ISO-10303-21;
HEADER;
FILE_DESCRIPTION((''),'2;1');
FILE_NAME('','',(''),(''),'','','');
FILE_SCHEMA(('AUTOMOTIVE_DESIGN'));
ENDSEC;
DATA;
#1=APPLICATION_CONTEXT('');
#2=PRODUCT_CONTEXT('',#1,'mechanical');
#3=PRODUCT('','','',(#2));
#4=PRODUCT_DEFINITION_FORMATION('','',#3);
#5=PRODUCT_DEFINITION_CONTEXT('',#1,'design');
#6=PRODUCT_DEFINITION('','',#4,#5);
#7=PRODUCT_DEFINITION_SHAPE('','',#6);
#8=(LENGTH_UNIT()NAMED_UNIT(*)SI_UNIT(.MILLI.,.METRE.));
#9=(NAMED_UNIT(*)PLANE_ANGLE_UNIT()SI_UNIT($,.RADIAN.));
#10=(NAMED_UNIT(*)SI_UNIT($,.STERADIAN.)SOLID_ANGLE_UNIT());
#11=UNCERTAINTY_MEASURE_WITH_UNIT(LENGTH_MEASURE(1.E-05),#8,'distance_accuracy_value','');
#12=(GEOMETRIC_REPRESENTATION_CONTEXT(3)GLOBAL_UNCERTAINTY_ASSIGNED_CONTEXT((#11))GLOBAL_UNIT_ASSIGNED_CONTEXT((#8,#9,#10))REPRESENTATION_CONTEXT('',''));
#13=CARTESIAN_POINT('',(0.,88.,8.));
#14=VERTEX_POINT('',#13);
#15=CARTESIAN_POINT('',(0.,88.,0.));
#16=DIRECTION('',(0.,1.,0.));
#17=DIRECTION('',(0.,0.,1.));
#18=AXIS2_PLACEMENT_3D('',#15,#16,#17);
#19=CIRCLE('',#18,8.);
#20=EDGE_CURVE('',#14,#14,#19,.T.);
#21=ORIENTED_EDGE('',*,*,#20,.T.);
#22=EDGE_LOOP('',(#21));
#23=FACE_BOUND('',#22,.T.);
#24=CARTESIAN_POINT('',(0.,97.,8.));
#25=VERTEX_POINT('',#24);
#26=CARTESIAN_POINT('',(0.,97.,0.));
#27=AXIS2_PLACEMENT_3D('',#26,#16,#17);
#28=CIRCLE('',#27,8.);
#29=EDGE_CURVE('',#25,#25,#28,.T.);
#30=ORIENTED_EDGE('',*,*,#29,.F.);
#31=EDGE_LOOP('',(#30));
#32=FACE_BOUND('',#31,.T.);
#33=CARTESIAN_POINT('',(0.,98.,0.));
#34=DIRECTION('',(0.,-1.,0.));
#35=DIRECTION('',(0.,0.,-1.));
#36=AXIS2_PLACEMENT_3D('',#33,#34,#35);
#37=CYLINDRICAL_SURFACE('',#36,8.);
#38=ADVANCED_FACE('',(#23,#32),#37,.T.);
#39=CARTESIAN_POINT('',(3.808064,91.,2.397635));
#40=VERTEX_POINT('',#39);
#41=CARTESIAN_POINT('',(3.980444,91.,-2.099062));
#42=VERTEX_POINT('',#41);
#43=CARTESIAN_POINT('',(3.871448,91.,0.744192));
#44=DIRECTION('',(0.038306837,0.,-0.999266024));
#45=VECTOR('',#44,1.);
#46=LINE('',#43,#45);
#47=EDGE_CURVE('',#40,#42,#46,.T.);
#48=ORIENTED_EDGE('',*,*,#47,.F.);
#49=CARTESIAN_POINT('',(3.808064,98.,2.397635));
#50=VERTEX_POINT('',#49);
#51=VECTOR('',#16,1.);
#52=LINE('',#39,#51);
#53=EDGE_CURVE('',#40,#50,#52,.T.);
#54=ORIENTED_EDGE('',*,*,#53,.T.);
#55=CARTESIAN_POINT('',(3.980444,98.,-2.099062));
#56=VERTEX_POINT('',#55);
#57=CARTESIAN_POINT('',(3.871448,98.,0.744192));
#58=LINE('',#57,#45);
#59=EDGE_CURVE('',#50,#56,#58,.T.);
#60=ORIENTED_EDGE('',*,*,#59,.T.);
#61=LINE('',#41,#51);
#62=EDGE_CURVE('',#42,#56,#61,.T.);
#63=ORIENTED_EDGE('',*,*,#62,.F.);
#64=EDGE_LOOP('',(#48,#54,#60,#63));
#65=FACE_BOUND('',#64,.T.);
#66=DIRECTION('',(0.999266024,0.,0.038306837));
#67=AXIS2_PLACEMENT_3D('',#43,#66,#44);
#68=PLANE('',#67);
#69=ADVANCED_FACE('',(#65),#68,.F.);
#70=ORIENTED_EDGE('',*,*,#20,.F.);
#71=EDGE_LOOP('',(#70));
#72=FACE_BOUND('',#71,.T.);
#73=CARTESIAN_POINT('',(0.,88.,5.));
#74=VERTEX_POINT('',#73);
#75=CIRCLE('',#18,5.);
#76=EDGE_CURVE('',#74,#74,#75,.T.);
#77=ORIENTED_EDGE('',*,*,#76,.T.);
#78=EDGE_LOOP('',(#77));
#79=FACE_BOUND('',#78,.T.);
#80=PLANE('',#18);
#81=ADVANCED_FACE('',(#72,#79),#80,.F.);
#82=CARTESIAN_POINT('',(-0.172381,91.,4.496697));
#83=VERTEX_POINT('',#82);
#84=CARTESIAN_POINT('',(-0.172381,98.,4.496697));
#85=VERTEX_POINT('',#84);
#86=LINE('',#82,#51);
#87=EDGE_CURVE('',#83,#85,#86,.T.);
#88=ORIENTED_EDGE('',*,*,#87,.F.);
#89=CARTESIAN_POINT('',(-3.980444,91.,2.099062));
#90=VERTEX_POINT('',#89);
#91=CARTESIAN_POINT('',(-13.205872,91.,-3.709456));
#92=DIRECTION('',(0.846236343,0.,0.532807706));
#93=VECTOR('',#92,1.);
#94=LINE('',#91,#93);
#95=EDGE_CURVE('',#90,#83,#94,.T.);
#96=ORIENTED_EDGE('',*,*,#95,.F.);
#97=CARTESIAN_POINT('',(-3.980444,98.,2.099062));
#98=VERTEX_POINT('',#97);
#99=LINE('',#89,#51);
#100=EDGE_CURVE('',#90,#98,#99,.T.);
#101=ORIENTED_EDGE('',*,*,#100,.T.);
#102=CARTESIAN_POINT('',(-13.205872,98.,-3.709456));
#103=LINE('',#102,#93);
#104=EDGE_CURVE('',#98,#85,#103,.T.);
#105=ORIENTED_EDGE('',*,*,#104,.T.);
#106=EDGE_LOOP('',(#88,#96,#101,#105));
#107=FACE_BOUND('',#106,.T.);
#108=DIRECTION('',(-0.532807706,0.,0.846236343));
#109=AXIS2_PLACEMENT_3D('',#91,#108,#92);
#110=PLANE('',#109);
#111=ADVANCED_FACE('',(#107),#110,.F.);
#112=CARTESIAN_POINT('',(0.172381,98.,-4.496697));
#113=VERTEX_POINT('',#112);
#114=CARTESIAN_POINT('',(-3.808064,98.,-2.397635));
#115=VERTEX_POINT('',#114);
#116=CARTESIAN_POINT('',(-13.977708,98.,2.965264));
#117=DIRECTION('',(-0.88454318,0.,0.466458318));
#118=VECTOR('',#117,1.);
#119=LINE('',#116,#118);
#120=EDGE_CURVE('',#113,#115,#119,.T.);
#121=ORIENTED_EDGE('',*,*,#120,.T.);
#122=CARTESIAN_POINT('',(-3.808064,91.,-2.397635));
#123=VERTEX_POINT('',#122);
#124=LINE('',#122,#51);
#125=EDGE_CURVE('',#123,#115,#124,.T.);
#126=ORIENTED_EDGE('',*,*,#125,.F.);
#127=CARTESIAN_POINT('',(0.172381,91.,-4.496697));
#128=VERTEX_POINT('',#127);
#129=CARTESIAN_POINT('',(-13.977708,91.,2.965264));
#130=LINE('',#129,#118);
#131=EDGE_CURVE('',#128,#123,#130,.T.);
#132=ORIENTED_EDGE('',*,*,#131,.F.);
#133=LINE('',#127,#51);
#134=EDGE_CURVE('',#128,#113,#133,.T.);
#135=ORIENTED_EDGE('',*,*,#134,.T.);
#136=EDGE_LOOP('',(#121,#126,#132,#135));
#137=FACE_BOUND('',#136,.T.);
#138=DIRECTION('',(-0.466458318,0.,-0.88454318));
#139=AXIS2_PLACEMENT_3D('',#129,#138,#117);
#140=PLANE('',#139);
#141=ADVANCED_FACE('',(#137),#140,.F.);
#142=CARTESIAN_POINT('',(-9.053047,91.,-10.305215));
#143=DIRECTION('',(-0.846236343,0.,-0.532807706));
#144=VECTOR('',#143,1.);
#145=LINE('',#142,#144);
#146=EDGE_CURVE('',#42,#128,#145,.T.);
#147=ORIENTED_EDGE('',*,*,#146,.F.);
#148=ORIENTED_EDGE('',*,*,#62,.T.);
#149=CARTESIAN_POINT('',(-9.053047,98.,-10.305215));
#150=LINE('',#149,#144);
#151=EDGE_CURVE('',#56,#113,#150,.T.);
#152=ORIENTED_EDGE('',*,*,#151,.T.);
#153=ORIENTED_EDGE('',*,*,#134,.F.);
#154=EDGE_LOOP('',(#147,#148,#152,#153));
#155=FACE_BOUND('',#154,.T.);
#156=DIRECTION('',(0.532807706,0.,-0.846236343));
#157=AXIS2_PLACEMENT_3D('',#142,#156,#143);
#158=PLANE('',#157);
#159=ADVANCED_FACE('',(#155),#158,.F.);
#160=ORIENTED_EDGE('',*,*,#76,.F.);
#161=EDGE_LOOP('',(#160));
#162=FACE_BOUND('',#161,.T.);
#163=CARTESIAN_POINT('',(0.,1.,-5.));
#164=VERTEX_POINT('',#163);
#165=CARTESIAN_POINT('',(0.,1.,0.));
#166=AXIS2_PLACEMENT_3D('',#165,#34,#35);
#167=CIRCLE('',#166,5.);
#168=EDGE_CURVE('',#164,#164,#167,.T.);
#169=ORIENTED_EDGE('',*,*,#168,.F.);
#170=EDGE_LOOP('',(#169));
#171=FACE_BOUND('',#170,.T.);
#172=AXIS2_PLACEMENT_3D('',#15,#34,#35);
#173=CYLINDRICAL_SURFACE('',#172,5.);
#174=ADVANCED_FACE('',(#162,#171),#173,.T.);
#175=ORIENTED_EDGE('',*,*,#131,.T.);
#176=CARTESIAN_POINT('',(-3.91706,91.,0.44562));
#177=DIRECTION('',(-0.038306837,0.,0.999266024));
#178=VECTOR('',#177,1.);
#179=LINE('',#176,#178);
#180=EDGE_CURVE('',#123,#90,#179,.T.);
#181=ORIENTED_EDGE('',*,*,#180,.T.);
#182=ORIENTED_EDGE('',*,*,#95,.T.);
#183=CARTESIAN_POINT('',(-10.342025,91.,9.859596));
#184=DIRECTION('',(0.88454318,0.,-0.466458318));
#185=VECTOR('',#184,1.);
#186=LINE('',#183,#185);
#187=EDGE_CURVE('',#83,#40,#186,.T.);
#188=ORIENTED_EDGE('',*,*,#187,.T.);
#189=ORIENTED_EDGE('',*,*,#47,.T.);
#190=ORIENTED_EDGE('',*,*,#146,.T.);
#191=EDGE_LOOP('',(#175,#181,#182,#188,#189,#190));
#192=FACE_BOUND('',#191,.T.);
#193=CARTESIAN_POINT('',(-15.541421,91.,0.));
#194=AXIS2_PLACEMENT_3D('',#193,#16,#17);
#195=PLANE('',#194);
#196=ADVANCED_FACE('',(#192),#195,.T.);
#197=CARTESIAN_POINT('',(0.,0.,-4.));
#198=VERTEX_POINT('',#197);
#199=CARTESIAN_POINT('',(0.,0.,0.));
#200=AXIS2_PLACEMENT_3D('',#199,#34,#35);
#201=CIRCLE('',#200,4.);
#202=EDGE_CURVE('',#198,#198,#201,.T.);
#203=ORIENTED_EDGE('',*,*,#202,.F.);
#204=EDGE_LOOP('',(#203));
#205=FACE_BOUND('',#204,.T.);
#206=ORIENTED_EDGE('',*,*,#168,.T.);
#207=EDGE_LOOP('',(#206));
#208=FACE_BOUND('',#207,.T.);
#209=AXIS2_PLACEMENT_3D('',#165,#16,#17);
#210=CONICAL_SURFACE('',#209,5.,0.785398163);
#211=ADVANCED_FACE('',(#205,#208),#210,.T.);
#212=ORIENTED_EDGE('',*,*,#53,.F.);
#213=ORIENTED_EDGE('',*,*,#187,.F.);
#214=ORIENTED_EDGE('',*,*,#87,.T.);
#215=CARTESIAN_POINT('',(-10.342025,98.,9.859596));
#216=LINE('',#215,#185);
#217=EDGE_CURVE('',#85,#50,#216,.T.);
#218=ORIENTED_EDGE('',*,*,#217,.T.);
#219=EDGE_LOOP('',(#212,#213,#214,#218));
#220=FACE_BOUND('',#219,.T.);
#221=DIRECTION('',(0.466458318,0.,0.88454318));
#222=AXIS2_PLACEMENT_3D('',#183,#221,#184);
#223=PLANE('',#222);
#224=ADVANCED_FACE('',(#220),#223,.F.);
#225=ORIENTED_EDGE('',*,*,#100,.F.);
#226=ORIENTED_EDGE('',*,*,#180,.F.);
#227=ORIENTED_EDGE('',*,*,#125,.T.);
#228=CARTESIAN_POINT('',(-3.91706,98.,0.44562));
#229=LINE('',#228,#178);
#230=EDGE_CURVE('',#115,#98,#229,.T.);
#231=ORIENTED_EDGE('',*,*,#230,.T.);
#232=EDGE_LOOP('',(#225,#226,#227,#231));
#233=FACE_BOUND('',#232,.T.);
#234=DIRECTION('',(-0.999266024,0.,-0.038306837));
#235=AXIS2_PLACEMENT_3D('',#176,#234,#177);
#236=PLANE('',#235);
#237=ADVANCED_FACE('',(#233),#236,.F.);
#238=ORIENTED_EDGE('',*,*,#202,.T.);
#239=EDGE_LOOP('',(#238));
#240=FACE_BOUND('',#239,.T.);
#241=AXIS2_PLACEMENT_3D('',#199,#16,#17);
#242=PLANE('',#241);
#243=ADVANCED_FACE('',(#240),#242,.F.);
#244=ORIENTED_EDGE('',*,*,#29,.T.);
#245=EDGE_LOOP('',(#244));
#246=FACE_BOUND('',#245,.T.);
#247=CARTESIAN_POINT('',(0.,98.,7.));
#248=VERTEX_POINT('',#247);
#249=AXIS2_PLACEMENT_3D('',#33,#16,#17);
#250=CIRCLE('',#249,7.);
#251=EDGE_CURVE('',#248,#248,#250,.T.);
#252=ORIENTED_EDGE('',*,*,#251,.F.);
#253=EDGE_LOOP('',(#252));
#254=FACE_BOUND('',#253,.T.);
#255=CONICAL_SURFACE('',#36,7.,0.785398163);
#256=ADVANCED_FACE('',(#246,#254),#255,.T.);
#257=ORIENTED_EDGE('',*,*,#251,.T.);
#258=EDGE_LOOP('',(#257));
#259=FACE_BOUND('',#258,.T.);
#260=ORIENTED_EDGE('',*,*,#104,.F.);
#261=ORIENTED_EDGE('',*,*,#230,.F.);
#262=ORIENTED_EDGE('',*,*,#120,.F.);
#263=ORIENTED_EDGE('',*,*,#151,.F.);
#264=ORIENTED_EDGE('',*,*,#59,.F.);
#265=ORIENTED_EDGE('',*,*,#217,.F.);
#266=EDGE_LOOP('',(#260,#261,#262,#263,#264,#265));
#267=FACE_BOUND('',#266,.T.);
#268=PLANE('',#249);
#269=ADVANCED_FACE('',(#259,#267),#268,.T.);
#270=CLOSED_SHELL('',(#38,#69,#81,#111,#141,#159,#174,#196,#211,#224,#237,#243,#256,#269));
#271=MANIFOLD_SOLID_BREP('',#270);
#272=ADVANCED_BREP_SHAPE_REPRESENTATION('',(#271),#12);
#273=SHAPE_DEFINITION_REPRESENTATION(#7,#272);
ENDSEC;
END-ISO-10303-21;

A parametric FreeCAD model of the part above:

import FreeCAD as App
import Part
import Sketcher
from FreeCAD import Vector
Q = App.Units.Quantity


def add_polygon(sketch, points):
    """Adds a closed chain of lines whose ends are joined by coincident constraints."""
    first, n = sketch.GeometryCount, len(points)
    for a, b in zip(points, points[1:] + points[:1]):
        sketch.addGeometry(Part.LineSegment(App.Vector(*a, 0), App.Vector(*b, 0)), False)
    for i in range(n):
        sketch.addConstraint(Sketcher.Constraint("Coincident", first + i, 2, first + (i + 1) % n, 1))

doc = App.newDocument("Part")
params = doc.addObject("Spreadsheet::Sheet", "Params")
for row, (alias, value) in enumerate([
    ("sketch1_diameter", "10 mm"),
    ("pad1_length", "88 mm"),
    ("sketch2_diameter", "16 mm"),
    ("pad2_length", "10 mm"),
    ("sketch3_width", "1 mm"),
    ("groove_angle", "360 deg"),
    ("sketch4_width", "1 mm"),
    ("groove2_angle", "360 deg"),
    ("sketch5_length", "4.5 mm"),
    ("pocket1_length", "7 mm"),
], start=1):
    params.set(f"A{row}", alias)
    params.set(f"B{row}", "=" + value)
    params.setAlias(f"B{row}", alias)

body = doc.addObject("PartDesign::Body", "Body")

sketch1 = body.newObject("Sketcher::SketchObject", "Sketch")
sketch1.AttachmentSupport = (doc.getObject("XZ_Plane"), [""])
sketch1.MapMode = "FlatFace"
sketch1.addGeometry(Part.Circle(Vector(0, 0, 0), Vector(0, 0, 1), 5), False)
sketch1.addConstraint(Sketcher.Constraint("Coincident", 0, 3, -1, 1))
sketch1.addConstraint(Sketcher.Constraint("Diameter", 0, Q("10 mm")))
sketch1.setExpression("Constraints[1]", "Params.sketch1_diameter")
pad1 = body.newObject("PartDesign::Pad", "Pad")
pad1.Profile = sketch1
pad1.setExpression("Length", "Params.pad1_length")
pad1.Reversed = True

sketch2 = body.newObject("Sketcher::SketchObject", "Sketch001")
sketch2.AttachmentSupport = (doc.getObject("XZ_Plane"), [""])
sketch2.MapMode = "FlatFace"
sketch2.AttachmentOffset = App.Placement(Vector(0, 0, -88), App.Rotation())
sketch2.addGeometry(Part.Circle(Vector(0, 0, 0), Vector(0, 0, 1), 8), False)
sketch2.addConstraint(Sketcher.Constraint("Coincident", 0, 3, -1, 1))
sketch2.addConstraint(Sketcher.Constraint("Diameter", 0, Q("16 mm")))
sketch2.setExpression("Constraints[1]", "Params.sketch2_diameter")
pad2 = body.newObject("PartDesign::Pad", "Pad001")
pad2.Profile = sketch2
pad2.setExpression("Length", "Params.pad2_length")
pad2.Reversed = True

sketch3 = body.newObject("Sketcher::SketchObject", "Sketch002")
sketch3.AttachmentSupport = (doc.getObject("XY_Plane"), [""])
sketch3.MapMode = "FlatFace"
add_polygon(sketch3, [(8, 97), (8, 98), (7, 98)])
sketch3.addConstraint(Sketcher.Constraint("Vertical", 0))
sketch3.addConstraint(Sketcher.Constraint("Horizontal", 1))
sketch3.addConstraint(Sketcher.Constraint("Equal", 1, 0))
sketch3.addConstraint(Sketcher.Constraint("DistanceX", 1, 2, 1, 1, Q("1 mm")))
sketch3.addConstraint(Sketcher.Constraint("DistanceX", -1, 1, 0, 2, Q("8 mm")))
sketch3.addConstraint(Sketcher.Constraint("DistanceY", -1, 1, 0, 2, Q("98 mm")))
sketch3.setExpression("Constraints[6]", "Params.sketch3_width")
groove = body.newObject("PartDesign::Groove", "Groove")
groove.Profile = sketch3
groove.ReferenceAxis = (sketch3, ["V_Axis"])
groove.setExpression("Angle", "Params.groove_angle")

sketch4 = body.newObject("Sketcher::SketchObject", "Sketch003")
sketch4.AttachmentSupport = (doc.getObject("XY_Plane"), [""])
sketch4.MapMode = "FlatFace"
add_polygon(sketch4, [(4, 0), (5, 0), (5, 1)])
sketch4.addConstraint(Sketcher.Constraint("Horizontal", 0))
sketch4.addConstraint(Sketcher.Constraint("Vertical", 1))
sketch4.addConstraint(Sketcher.Constraint("PointOnObject", 0, 2, -1))
sketch4.addConstraint(Sketcher.Constraint("Equal", 0, 1))
sketch4.addConstraint(Sketcher.Constraint("DistanceX", 0, 1, 0, 2, Q("1 mm")))
sketch4.addConstraint(Sketcher.Constraint("DistanceX", -1, 1, 0, 2, Q("5 mm")))
sketch4.setExpression("Constraints[7]", "Params.sketch4_width")
groove2 = body.newObject("PartDesign::Groove", "Groove001")
groove2.Profile = sketch4
groove2.ReferenceAxis = (sketch4, ["V_Axis"])
groove2.setExpression("Angle", "Params.groove2_angle")

sketch5 = body.newObject("Sketcher::SketchObject", "Sketch004")
sketch5.AttachmentSupport = (doc.getObject("XZ_Plane"), [""])
sketch5.MapMode = "FlatFace"
sketch5.AttachmentOffset = App.Placement(Vector(0, 0, -98), App.Rotation())
add_polygon(sketch5, [(-0.2, 4.5), (3.8, 2.4), (4, -2.1), (0.2, -4.5), (-3.8, -2.4), (-4, 2.1)])
sketch5.addConstraint(Sketcher.Constraint("Symmetric", 0, 2, 3, 2, -1, 1))
sketch5.addConstraint(Sketcher.Constraint("Symmetric", 1, 2, 4, 2, -1, 1))
sketch5.addConstraint(Sketcher.Constraint("Symmetric", 2, 2, 5, 2, -1, 1))
sketch5.addConstraint(Sketcher.Constraint("Equal", 0, 1))
sketch5.addConstraint(Sketcher.Constraint("Equal", 1, 2))
sketch5.addConstraint(Sketcher.Constraint("Distance", 0, Q("4.5 mm")))
sketch5.addConstraint(Sketcher.Constraint("DistanceX", -1, 1, 2, 2, Q("0.172381 mm")))
sketch5.addConstraint(Sketcher.Constraint("DistanceX", 0, 2, 1, 2, Q("0.172381 mm")))
sketch5.addConstraint(Sketcher.Constraint("DistanceY", 2, 2, 0, 2, Q("6.894332 mm")))
sketch5.setExpression("Constraints[11]", "Params.sketch5_length")
pocket1 = body.newObject("PartDesign::Pocket", "Pocket")
pocket1.Profile = sketch5
pocket1.setExpression("Length", "Params.pocket1_length")
pocket1.Reversed = True

doc.recompute()
